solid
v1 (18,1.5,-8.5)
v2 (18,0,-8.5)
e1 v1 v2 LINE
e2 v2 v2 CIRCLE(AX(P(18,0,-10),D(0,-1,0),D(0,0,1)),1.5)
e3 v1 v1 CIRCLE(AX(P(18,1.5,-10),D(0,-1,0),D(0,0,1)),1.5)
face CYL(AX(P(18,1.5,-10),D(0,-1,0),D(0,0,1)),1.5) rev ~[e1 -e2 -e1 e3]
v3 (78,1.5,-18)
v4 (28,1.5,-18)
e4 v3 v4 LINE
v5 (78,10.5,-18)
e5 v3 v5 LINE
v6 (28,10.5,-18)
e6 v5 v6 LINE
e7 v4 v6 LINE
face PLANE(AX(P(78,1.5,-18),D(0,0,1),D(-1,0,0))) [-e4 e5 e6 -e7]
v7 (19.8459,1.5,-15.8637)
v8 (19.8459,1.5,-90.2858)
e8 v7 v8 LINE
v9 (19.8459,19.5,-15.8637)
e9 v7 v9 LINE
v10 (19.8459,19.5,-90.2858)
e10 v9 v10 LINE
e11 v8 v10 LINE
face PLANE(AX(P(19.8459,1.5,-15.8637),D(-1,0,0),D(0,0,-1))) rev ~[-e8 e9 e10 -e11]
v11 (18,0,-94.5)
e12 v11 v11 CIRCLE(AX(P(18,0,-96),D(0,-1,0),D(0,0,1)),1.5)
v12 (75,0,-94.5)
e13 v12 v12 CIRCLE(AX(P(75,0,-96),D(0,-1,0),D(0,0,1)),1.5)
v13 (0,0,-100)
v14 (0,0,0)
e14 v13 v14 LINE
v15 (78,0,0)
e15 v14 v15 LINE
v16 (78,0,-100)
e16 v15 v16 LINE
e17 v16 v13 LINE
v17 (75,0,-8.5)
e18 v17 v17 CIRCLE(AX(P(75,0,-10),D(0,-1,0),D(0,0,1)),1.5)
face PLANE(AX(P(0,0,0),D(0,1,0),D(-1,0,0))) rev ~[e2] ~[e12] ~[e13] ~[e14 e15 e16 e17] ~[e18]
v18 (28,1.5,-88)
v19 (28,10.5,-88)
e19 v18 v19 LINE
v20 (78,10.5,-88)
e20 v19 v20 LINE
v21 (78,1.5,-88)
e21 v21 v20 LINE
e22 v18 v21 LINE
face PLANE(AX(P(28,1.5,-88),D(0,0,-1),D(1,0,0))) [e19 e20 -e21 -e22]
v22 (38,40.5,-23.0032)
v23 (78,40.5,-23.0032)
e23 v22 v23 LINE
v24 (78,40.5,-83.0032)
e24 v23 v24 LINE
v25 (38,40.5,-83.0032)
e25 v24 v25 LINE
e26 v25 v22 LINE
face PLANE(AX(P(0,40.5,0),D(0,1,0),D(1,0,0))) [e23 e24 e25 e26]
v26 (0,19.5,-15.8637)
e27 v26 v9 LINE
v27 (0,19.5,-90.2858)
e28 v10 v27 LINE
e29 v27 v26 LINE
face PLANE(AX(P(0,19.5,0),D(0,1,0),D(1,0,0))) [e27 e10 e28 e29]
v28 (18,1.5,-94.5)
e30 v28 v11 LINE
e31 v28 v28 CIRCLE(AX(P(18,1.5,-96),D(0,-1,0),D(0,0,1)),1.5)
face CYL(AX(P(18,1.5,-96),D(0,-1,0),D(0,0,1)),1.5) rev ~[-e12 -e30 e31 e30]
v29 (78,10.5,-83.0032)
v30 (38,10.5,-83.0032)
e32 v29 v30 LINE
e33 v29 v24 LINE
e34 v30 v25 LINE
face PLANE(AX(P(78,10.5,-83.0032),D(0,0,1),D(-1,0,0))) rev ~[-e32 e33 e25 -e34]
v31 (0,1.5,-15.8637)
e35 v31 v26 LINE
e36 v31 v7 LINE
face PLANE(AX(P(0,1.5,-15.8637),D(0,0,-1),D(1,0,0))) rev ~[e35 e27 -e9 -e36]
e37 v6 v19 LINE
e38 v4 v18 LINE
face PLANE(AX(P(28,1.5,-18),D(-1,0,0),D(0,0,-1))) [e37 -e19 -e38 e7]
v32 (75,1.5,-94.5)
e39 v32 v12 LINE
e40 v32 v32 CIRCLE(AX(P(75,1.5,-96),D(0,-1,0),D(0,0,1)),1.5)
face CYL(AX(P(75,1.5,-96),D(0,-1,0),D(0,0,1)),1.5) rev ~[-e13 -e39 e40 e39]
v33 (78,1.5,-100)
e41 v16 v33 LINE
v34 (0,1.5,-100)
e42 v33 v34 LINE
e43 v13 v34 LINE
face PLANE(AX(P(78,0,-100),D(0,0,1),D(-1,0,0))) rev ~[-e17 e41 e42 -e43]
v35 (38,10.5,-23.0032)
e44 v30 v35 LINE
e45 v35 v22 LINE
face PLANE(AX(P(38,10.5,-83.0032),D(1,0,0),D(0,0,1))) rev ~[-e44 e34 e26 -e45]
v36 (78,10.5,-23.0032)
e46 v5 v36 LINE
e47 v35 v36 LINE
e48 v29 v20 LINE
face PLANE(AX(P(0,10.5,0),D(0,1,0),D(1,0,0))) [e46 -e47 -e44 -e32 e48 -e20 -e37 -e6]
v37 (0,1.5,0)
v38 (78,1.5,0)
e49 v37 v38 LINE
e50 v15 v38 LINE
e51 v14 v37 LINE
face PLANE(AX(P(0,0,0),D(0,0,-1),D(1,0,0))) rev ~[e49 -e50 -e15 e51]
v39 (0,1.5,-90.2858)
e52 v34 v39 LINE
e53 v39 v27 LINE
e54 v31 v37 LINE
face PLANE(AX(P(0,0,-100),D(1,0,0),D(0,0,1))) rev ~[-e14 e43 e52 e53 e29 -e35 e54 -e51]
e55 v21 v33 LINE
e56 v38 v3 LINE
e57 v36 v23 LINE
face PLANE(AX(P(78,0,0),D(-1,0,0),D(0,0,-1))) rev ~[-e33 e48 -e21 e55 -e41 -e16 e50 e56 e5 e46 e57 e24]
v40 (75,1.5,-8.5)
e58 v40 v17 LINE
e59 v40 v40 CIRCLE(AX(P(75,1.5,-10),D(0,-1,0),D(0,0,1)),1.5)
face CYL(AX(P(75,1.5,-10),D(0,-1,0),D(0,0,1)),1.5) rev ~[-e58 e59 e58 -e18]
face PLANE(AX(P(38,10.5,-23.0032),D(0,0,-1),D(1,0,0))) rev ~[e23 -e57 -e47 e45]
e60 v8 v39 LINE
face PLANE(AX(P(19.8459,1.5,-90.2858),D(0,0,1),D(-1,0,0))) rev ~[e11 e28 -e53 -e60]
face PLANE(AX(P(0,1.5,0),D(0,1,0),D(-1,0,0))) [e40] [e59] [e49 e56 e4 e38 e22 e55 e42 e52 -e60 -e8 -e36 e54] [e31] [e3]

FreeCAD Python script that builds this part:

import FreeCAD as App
import Part
import Sketcher


def add_polygon(sketch, points):
    """Adds a closed chain of lines whose ends are joined by coincident constraints."""
    first, n = sketch.GeometryCount, len(points)
    for a, b in zip(points, points[1:] + points[:1]):
        sketch.addGeometry(Part.LineSegment(App.Vector(*a, 0), App.Vector(*b, 0)), False)
    for i in range(n):
        sketch.addConstraint(Sketcher.Constraint("Coincident", first + i, 2, first + (i + 1) % n, 1))

doc = App.newDocument("Part")
body = doc.addObject("PartDesign::Body", "Body")

# Sketch on XZ plane
sketch1 = body.newObject("Sketcher::SketchObject", "Sketch")
sketch1.AttachmentSupport = (doc.getObject("XZ_Plane"), [""])
sketch1.MapMode = "FlatFace"
add_polygon(sketch1, [(0, -100), (0, 0), (78, 0), (78, -100)])  # lines 0-3
sketch1.addConstraint(Sketcher.Constraint("Vertical", 0))
sketch1.addConstraint(Sketcher.Constraint("Horizontal", 1))
sketch1.addConstraint(Sketcher.Constraint("Vertical", 2))
sketch1.addConstraint(Sketcher.Constraint("Horizontal", 3))
sketch1.addConstraint(Sketcher.Constraint("Coincident", 0, 2, -1, 1))
sketch1.addConstraint(Sketcher.Constraint("DistanceX", 1, 1, 1, 2, 78.0))
sketch1.addConstraint(Sketcher.Constraint("DistanceY", 0, 1, 0, 2, 100.0))
pad1 = body.newObject("PartDesign::Pad", "Pad")
pad1.Profile = sketch1
pad1.Length = 1.5
pad1.Reversed = True

# Sketch on XZ plane
sketch2 = body.newObject("Sketcher::SketchObject", "Sketch001")
sketch2.AttachmentSupport = (doc.getObject("XZ_Plane"), [""])
sketch2.MapMode = "FlatFace"
sketch2.AttachmentOffset = App.Placement(App.Vector(0, 0, -1.5), App.Rotation())
sketch2.addGeometry(Part.Circle(App.Vector(75, -96, 0), App.Vector(0, 0, 1), 1.5), False)
sketch2.addGeometry(Part.Circle(App.Vector(75, -10, 0), App.Vector(0, 0, 1), 1.5), False)
sketch2.addGeometry(Part.Circle(App.Vector(18, -10, 0), App.Vector(0, 0, 1), 1.5), False)
sketch2.addGeometry(Part.Circle(App.Vector(18, -96, 0), App.Vector(0, 0, 1), 1.5), False)
sketch2.addConstraint(Sketcher.Constraint("Equal", 0, 1))
sketch2.addConstraint(Sketcher.Constraint("Equal", 1, 2))
sketch2.addConstraint(Sketcher.Constraint("Equal", 2, 3))
sketch2.addConstraint(Sketcher.Constraint("Horizontal", 1, 3, 2, 3))
sketch2.addConstraint(Sketcher.Constraint("Horizontal", 0, 3, 3, 3))
sketch2.addConstraint(Sketcher.Constraint("Vertical", 0, 3, 1, 3))
sketch2.addConstraint(Sketcher.Constraint("Vertical", 2, 3, 3, 3))
sketch2.addConstraint(Sketcher.Constraint("Diameter", 0, 3.0))
sketch2.addConstraint(Sketcher.Constraint("DistanceX", -1, 1, 0, 3, 75.0))
sketch2.addConstraint(Sketcher.Constraint("DistanceY", 0, 3, -1, 1, 96.0))
sketch2.addConstraint(Sketcher.Constraint("DistanceY", 1, 3, -1, 1, 10.0))
sketch2.addConstraint(Sketcher.Constraint("DistanceX", -1, 1, 2, 3, 18.0))
doc.recompute()
hole = body.newObject("PartDesign::Hole", "Hole")
hole.Profile = sketch2
hole.ThreadType = "None"
hole.Diameter = 3
hole.DepthType = "ThroughAll"
hole.Reversed = True

# Sketch on XZ plane
sketch3 = body.newObject("Sketcher::SketchObject", "Sketch002")
sketch3.AttachmentSupport = (doc.getObject("XZ_Plane"), [""])
sketch3.MapMode = "FlatFace"
sketch3.AttachmentOffset = App.Placement(App.Vector(0, 0, -1.5), App.Rotation())
add_polygon(sketch3, [(20, -90), (0, -90), (0, -16), (20, -16)])  # lines 0-3
sketch3.addConstraint(Sketcher.Constraint("Horizontal", 0))
sketch3.addConstraint(Sketcher.Constraint("Vertical", 1))
sketch3.addConstraint(Sketcher.Constraint("Horizontal", 2))
sketch3.addConstraint(Sketcher.Constraint("Vertical", 3))
sketch3.addConstraint(Sketcher.Constraint("PointOnObject", 0, 2, -2))
sketch3.addConstraint(Sketcher.Constraint("DistanceX", 0, 2, 0, 1, 19.846))
sketch3.addConstraint(Sketcher.Constraint("DistanceY", 1, 1, 1, 2, 74.422))
sketch3.addConstraint(Sketcher.Constraint("DistanceY", 1, 2, -1, 1, 15.8637))
pad2 = body.newObject("PartDesign::Pad", "Pad001")
pad2.Profile = sketch3
pad2.Length = 18
pad2.Reversed = True

# Sketch on XZ plane
sketch4 = body.newObject("Sketcher::SketchObject", "Sketch003")
sketch4.AttachmentSupport = (doc.getObject("XZ_Plane"), [""])
sketch4.MapMode = "FlatFace"
sketch4.AttachmentOffset = App.Placement(App.Vector(0, 0, -1.5), App.Rotation())
add_polygon(sketch4, [(28, -18), (78, -18), (78, -88), (28, -88)])  # lines 0-3
sketch4.addConstraint(Sketcher.Constraint("Horizontal", 0))
sketch4.addConstraint(Sketcher.Constraint("Vertical", 1))
sketch4.addConstraint(Sketcher.Constraint("Horizontal", 2))
sketch4.addConstraint(Sketcher.Constraint("Vertical", 3))
sketch4.addConstraint(Sketcher.Constraint("DistanceX", 0, 1, 0, 2, 50.0))
sketch4.addConstraint(Sketcher.Constraint("DistanceY", 1, 2, 1, 1, 70.0))
sketch4.addConstraint(Sketcher.Constraint("DistanceY", 0, 2, -1, 1, 18.0))
sketch4.addConstraint(Sketcher.Constraint("DistanceX", -1, 1, 0, 2, 78.0))
pad3 = body.newObject("PartDesign::Pad", "Pad002")
pad3.Profile = sketch4
pad3.Length = 9
pad3.Reversed = True

# Sketch on XZ plane
sketch5 = body.newObject("Sketcher::SketchObject", "Sketch004")
sketch5.AttachmentSupport = (doc.getObject("XZ_Plane"), [""])
sketch5.MapMode = "FlatFace"
sketch5.AttachmentOffset = App.Placement(App.Vector(0, 0, -10.5), App.Rotation())
add_polygon(sketch5, [(38, -83), (38, -23), (78, -23), (78, -83)])  # lines 0-3
sketch5.addConstraint(Sketcher.Constraint("Vertical", 0))
sketch5.addConstraint(Sketcher.Constraint("Horizontal", 1))
sketch5.addConstraint(Sketcher.Constraint("Vertical", 2))
sketch5.addConstraint(Sketcher.Constraint("Horizontal", 3))
sketch5.addConstraint(Sketcher.Constraint("DistanceX", 1, 1, 1, 2, 40.0))
sketch5.addConstraint(Sketcher.Constraint("DistanceY", 0, 1, 0, 2, 60.0))
sketch5.addConstraint(Sketcher.Constraint("DistanceX", -1, 1, 0, 2, 38.0))
sketch5.addConstraint(Sketcher.Constraint("DistanceY", 0, 2, -1, 1, 23.0032))
pad4 = body.newObject("PartDesign::Pad", "Pad003")
pad4.Profile = sketch5
pad4.Length = 30
pad4.Reversed = True

doc.recompute()
